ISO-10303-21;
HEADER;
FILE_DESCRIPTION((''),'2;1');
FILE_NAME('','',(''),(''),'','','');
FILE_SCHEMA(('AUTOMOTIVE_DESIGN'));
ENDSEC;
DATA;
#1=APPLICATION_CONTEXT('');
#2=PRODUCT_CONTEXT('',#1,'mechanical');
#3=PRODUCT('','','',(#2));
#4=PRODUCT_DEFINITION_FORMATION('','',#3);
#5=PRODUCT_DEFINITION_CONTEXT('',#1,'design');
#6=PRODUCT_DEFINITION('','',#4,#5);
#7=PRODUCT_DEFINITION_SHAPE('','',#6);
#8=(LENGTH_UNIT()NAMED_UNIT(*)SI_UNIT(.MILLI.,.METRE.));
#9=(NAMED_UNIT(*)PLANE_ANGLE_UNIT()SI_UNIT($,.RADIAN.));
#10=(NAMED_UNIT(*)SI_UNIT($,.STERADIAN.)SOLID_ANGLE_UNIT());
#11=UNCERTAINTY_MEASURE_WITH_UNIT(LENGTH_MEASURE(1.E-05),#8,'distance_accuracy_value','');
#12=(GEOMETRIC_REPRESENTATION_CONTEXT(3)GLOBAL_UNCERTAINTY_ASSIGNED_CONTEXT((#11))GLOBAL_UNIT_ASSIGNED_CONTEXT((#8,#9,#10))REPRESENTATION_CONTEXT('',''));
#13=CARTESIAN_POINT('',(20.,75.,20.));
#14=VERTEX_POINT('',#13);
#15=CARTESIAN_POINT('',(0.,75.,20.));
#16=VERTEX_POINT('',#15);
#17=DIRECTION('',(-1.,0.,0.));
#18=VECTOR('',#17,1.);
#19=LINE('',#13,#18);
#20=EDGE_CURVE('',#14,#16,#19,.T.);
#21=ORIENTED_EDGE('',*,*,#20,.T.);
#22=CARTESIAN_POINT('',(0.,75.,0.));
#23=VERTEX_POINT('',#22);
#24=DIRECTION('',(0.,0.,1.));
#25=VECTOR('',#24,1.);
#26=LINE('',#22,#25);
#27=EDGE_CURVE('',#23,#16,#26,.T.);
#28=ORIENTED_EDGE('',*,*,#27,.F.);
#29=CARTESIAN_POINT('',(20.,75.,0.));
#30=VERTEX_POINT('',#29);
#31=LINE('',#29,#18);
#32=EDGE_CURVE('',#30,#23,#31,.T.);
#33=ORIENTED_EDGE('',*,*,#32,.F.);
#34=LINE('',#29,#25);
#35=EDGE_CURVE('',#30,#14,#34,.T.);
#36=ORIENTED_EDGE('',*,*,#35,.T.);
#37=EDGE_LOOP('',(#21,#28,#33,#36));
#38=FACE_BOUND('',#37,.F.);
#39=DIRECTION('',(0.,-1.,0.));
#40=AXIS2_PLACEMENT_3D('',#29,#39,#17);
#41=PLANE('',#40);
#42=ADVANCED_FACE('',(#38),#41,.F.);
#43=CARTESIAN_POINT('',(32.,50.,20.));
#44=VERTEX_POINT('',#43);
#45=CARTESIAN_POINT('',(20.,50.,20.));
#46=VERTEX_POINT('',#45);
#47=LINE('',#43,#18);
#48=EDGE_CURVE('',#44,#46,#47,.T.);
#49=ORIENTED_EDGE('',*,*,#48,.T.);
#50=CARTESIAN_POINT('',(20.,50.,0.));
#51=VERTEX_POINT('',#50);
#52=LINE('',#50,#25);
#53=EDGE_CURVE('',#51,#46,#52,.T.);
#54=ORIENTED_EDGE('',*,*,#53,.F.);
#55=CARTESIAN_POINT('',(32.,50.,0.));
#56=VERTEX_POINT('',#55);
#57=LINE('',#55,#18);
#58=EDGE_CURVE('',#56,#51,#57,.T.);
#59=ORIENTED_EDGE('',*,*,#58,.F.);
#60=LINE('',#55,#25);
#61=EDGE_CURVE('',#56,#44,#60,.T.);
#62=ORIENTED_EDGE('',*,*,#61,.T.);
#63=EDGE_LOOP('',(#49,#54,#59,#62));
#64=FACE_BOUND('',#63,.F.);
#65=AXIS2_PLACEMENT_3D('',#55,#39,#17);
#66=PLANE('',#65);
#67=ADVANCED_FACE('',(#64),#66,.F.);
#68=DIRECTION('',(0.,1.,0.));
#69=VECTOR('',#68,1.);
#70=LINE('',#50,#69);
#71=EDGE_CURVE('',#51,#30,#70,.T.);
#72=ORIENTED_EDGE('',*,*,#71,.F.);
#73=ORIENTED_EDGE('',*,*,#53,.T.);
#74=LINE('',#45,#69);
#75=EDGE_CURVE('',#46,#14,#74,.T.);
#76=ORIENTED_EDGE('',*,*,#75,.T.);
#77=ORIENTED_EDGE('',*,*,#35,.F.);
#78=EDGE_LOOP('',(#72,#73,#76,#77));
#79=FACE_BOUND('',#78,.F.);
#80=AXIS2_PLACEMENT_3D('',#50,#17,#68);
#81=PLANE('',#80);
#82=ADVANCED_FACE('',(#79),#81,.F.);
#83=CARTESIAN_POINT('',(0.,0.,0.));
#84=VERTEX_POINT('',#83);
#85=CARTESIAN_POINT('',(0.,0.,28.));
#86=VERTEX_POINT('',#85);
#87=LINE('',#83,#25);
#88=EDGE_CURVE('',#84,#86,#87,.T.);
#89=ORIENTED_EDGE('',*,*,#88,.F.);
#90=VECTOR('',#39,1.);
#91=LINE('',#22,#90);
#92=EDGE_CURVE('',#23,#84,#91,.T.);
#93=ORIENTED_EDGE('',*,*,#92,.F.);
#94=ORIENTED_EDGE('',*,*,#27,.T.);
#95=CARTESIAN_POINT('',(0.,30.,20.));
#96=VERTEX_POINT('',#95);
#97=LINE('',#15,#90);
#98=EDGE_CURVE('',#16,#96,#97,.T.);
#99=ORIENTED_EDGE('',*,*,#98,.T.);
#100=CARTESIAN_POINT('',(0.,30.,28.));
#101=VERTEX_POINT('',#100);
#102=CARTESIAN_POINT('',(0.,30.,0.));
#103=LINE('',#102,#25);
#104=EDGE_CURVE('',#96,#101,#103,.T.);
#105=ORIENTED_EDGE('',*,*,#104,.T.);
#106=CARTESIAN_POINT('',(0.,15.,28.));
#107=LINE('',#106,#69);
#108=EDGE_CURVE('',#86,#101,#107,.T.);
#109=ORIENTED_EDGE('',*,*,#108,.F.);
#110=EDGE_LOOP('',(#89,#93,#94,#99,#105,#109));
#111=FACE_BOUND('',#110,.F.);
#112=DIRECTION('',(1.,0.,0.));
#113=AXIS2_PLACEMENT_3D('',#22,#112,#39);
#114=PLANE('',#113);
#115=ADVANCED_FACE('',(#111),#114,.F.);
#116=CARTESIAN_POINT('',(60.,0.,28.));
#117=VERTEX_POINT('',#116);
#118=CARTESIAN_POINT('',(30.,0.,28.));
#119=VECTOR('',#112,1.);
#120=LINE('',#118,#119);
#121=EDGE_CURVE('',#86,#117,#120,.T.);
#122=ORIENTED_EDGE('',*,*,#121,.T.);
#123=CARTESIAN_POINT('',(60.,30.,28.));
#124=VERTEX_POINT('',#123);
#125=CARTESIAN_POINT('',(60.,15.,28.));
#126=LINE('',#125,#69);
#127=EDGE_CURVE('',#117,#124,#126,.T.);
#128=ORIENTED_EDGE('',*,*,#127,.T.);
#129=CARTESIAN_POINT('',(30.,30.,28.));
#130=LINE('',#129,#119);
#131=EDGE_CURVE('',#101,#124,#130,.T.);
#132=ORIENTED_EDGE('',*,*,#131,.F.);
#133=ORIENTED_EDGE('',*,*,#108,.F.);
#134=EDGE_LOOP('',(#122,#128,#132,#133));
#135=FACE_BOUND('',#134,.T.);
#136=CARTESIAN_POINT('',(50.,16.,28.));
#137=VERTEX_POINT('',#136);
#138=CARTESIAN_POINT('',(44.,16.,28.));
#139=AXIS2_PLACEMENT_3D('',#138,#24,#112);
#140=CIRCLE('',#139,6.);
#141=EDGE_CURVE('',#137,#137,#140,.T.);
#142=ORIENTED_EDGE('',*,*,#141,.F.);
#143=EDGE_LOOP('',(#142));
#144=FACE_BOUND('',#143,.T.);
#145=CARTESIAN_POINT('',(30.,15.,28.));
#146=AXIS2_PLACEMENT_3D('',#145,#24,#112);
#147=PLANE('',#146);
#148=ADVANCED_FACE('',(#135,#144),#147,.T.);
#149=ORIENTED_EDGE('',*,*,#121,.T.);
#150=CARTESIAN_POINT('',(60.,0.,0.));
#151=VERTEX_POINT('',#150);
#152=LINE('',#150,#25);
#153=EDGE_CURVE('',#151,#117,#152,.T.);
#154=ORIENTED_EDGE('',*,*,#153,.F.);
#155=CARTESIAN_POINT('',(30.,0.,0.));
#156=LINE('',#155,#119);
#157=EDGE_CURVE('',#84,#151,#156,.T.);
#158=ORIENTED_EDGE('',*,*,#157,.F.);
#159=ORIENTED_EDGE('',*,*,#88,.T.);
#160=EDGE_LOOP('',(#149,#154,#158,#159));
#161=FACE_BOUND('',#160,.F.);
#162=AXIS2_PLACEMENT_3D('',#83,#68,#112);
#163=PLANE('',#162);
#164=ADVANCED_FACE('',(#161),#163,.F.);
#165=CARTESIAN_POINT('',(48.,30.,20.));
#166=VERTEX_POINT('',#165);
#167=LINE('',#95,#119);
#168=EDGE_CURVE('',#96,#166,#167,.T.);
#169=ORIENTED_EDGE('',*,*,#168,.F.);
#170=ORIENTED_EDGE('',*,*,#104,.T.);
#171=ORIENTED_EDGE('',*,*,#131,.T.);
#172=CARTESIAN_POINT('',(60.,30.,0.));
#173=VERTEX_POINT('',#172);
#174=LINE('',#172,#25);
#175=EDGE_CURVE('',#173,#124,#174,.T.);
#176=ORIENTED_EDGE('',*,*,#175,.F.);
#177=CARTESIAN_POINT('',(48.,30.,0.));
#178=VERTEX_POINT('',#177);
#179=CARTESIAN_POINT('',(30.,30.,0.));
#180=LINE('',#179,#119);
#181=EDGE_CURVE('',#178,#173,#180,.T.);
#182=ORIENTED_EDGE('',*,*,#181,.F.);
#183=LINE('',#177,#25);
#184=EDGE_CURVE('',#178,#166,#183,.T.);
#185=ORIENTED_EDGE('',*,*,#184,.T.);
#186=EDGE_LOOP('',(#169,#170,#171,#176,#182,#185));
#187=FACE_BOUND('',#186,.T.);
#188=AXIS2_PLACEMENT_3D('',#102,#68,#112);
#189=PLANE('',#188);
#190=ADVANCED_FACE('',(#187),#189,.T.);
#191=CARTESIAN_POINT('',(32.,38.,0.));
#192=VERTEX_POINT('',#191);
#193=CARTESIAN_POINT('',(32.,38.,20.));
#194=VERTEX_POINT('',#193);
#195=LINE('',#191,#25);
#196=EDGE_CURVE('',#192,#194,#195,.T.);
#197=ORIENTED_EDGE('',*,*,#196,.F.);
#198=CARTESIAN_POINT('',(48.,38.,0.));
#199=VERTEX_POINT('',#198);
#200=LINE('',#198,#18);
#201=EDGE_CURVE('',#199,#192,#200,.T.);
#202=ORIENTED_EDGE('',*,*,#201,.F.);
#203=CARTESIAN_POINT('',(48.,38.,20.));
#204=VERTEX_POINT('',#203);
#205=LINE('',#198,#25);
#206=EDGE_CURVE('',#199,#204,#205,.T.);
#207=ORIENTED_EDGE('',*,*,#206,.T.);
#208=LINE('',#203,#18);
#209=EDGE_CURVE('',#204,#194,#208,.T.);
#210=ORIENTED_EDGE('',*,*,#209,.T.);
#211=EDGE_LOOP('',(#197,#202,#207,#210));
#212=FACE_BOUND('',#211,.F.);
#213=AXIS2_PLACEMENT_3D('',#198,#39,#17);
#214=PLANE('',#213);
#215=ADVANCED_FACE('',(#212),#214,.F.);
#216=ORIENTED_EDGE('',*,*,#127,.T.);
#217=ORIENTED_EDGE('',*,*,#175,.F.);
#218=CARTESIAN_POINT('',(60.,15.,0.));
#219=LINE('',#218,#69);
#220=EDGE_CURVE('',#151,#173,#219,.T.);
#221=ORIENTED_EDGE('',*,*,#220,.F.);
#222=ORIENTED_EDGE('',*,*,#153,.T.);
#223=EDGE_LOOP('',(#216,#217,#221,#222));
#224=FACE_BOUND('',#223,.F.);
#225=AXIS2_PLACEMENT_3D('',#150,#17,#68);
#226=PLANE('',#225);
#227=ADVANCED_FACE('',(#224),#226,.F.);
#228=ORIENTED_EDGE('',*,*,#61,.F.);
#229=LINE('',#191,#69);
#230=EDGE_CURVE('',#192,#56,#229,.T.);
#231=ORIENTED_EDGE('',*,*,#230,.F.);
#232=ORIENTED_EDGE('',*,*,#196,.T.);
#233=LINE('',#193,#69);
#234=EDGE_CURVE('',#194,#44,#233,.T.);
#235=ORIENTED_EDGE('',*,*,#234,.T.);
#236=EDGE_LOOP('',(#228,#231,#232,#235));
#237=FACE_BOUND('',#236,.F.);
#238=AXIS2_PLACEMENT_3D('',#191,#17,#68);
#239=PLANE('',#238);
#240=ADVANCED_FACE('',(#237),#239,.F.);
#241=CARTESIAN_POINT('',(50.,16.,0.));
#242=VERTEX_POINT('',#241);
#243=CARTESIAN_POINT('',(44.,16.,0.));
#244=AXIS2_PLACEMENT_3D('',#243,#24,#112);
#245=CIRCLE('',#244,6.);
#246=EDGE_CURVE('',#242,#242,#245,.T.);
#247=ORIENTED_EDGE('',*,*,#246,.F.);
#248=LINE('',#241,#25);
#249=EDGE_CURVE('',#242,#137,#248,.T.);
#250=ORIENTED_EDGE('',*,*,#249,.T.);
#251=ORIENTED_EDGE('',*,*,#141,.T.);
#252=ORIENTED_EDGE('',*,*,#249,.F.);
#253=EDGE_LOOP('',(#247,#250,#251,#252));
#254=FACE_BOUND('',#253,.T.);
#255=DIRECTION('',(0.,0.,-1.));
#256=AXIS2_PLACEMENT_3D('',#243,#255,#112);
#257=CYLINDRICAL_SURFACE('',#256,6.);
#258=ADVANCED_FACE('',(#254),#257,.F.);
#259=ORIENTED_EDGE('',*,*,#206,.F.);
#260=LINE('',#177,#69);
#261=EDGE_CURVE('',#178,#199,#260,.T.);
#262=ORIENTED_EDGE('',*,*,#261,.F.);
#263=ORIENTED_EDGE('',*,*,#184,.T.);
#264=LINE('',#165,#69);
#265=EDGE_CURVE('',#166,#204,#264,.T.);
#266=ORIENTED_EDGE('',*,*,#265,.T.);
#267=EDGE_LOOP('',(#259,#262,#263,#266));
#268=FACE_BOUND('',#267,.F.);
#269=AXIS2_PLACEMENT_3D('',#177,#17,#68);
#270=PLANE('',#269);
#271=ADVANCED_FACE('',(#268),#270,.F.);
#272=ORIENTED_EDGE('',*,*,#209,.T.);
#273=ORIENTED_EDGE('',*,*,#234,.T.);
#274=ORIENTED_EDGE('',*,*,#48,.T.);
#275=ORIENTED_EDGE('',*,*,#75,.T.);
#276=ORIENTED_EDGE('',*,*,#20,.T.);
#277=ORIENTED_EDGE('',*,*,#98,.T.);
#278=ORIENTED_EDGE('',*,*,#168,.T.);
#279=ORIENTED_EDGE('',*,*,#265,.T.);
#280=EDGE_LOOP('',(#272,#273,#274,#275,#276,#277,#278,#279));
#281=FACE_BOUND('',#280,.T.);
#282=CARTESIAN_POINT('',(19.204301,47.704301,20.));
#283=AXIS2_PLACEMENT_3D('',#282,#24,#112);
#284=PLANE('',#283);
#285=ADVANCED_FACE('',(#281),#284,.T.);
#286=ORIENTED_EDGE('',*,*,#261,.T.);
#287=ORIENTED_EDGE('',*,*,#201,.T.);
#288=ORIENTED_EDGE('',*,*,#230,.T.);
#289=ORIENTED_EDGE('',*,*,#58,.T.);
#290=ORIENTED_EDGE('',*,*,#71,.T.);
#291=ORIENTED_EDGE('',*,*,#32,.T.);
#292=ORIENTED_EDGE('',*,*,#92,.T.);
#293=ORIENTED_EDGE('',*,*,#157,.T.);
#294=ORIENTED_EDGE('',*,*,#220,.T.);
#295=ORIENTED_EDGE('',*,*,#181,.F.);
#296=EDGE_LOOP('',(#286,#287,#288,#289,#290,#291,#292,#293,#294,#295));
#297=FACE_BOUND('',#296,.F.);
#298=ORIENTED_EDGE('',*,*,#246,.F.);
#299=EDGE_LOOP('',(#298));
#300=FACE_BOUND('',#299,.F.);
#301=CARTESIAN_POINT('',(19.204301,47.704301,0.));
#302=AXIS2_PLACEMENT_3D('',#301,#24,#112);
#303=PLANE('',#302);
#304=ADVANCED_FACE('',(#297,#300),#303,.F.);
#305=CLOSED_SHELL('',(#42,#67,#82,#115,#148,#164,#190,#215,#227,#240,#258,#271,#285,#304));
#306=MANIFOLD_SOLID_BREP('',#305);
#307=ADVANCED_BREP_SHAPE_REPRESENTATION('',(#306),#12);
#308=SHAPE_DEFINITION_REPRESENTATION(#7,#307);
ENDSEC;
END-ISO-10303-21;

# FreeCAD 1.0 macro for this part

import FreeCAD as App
import Part
import Sketcher


def add_polygon(sketch, points):
    """Adds a closed chain of lines whose ends are joined by coincident constraints."""
    first, n = sketch.GeometryCount, len(points)
    for a, b in zip(points, points[1:] + points[:1]):
        sketch.addGeometry(Part.LineSegment(App.Vector(*a, 0), App.Vector(*b, 0)), False)
    for i in range(n):
        sketch.addConstraint(Sketcher.Constraint("Coincident", first + i, 2, first + (i + 1) % n, 1))

doc = App.newDocument("Part")
body = doc.addObject("PartDesign::Body", "Body")

# Sketch on XY plane
sketch1 = body.newObject("Sketcher::SketchObject", "Sketch")
sketch1.AttachmentSupport = (doc.getObject("XY_Plane"), [""])
sketch1.MapMode = "FlatFace"
add_polygon(sketch1, [(0, 30), (0, 0), (60, 0), (60, 30)])  # lines 0-3
sketch1.addGeometry(Part.Circle(App.Vector(44, 16, 0), App.Vector(0, 0, 1), 6), False)  # 4
sketch1.addConstraint([
    Sketcher.Constraint("Vertical", 0),
    Sketcher.Constraint("Horizontal", 1),
    Sketcher.Constraint("Vertical", 2),
    Sketcher.Constraint("Horizontal", 3),
    Sketcher.Constraint("Coincident", 0, 2, -1, 1),
    Sketcher.Constraint("Diameter", 4, 12.0),
    Sketcher.Constraint("DistanceX", 1, 1, 1, 2, 60.0),
    Sketcher.Constraint("DistanceY", 0, 2, 0, 1, 30.0),
    Sketcher.Constraint("DistanceX", -1, 1, 4, 3, 44.0),
    Sketcher.Constraint("DistanceY", -1, 1, 4, 3, 16.0),
])
pad1 = body.newObject("PartDesign::Pad", "Pad")
pad1.Profile = sketch1
pad1.Length = 28

# Sketch on XY plane
sketch2 = body.newObject("Sketcher::SketchObject", "Sketch001")
sketch2.AttachmentSupport = (doc.getObject("XY_Plane"), [""])
sketch2.MapMode = "FlatFace"
add_polygon(sketch2, [(0, 75), (0, 30), (48, 30), (48, 38), (32, 38), (32, 50), (20, 50), (20, 75)])  # lines 0-7
sketch2.addConstraint([
    Sketcher.Constraint("Vertical", 0),
    Sketcher.Constraint("Horizontal", 1),
    Sketcher.Constraint("Vertical", 2),
    Sketcher.Constraint("Horizontal", 3),
    Sketcher.Constraint("Vertical", 4),
    Sketcher.Constraint("Horizontal", 5),
    Sketcher.Constraint("Vertical", 6),
    Sketcher.Constraint("Horizontal", 7),
    Sketcher.Constraint("PointOnObject", 0, 2, -2),
    Sketcher.Constraint("Equal", 5, 4),
    Sketcher.Constraint("DistanceX", 1, 1, 1, 2, 48.0),
    Sketcher.Constraint("DistanceX", 3, 2, 3, 1, 16.0),
    Sketcher.Constraint("DistanceX", 5, 2, 5, 1, 12.0),
    Sketcher.Constraint("DistanceY", 0, 2, 0, 1, 45.0),
    Sketcher.Constraint("DistanceY", 2, 1, 2, 2, 8.0),
    Sketcher.Constraint("DistanceY", -1, 1, 0, 2, 30.0),
])
pad2 = body.newObject("PartDesign::Pad", "Pad001")
pad2.Profile = sketch2
pad2.Length = 20

doc.recompute()
